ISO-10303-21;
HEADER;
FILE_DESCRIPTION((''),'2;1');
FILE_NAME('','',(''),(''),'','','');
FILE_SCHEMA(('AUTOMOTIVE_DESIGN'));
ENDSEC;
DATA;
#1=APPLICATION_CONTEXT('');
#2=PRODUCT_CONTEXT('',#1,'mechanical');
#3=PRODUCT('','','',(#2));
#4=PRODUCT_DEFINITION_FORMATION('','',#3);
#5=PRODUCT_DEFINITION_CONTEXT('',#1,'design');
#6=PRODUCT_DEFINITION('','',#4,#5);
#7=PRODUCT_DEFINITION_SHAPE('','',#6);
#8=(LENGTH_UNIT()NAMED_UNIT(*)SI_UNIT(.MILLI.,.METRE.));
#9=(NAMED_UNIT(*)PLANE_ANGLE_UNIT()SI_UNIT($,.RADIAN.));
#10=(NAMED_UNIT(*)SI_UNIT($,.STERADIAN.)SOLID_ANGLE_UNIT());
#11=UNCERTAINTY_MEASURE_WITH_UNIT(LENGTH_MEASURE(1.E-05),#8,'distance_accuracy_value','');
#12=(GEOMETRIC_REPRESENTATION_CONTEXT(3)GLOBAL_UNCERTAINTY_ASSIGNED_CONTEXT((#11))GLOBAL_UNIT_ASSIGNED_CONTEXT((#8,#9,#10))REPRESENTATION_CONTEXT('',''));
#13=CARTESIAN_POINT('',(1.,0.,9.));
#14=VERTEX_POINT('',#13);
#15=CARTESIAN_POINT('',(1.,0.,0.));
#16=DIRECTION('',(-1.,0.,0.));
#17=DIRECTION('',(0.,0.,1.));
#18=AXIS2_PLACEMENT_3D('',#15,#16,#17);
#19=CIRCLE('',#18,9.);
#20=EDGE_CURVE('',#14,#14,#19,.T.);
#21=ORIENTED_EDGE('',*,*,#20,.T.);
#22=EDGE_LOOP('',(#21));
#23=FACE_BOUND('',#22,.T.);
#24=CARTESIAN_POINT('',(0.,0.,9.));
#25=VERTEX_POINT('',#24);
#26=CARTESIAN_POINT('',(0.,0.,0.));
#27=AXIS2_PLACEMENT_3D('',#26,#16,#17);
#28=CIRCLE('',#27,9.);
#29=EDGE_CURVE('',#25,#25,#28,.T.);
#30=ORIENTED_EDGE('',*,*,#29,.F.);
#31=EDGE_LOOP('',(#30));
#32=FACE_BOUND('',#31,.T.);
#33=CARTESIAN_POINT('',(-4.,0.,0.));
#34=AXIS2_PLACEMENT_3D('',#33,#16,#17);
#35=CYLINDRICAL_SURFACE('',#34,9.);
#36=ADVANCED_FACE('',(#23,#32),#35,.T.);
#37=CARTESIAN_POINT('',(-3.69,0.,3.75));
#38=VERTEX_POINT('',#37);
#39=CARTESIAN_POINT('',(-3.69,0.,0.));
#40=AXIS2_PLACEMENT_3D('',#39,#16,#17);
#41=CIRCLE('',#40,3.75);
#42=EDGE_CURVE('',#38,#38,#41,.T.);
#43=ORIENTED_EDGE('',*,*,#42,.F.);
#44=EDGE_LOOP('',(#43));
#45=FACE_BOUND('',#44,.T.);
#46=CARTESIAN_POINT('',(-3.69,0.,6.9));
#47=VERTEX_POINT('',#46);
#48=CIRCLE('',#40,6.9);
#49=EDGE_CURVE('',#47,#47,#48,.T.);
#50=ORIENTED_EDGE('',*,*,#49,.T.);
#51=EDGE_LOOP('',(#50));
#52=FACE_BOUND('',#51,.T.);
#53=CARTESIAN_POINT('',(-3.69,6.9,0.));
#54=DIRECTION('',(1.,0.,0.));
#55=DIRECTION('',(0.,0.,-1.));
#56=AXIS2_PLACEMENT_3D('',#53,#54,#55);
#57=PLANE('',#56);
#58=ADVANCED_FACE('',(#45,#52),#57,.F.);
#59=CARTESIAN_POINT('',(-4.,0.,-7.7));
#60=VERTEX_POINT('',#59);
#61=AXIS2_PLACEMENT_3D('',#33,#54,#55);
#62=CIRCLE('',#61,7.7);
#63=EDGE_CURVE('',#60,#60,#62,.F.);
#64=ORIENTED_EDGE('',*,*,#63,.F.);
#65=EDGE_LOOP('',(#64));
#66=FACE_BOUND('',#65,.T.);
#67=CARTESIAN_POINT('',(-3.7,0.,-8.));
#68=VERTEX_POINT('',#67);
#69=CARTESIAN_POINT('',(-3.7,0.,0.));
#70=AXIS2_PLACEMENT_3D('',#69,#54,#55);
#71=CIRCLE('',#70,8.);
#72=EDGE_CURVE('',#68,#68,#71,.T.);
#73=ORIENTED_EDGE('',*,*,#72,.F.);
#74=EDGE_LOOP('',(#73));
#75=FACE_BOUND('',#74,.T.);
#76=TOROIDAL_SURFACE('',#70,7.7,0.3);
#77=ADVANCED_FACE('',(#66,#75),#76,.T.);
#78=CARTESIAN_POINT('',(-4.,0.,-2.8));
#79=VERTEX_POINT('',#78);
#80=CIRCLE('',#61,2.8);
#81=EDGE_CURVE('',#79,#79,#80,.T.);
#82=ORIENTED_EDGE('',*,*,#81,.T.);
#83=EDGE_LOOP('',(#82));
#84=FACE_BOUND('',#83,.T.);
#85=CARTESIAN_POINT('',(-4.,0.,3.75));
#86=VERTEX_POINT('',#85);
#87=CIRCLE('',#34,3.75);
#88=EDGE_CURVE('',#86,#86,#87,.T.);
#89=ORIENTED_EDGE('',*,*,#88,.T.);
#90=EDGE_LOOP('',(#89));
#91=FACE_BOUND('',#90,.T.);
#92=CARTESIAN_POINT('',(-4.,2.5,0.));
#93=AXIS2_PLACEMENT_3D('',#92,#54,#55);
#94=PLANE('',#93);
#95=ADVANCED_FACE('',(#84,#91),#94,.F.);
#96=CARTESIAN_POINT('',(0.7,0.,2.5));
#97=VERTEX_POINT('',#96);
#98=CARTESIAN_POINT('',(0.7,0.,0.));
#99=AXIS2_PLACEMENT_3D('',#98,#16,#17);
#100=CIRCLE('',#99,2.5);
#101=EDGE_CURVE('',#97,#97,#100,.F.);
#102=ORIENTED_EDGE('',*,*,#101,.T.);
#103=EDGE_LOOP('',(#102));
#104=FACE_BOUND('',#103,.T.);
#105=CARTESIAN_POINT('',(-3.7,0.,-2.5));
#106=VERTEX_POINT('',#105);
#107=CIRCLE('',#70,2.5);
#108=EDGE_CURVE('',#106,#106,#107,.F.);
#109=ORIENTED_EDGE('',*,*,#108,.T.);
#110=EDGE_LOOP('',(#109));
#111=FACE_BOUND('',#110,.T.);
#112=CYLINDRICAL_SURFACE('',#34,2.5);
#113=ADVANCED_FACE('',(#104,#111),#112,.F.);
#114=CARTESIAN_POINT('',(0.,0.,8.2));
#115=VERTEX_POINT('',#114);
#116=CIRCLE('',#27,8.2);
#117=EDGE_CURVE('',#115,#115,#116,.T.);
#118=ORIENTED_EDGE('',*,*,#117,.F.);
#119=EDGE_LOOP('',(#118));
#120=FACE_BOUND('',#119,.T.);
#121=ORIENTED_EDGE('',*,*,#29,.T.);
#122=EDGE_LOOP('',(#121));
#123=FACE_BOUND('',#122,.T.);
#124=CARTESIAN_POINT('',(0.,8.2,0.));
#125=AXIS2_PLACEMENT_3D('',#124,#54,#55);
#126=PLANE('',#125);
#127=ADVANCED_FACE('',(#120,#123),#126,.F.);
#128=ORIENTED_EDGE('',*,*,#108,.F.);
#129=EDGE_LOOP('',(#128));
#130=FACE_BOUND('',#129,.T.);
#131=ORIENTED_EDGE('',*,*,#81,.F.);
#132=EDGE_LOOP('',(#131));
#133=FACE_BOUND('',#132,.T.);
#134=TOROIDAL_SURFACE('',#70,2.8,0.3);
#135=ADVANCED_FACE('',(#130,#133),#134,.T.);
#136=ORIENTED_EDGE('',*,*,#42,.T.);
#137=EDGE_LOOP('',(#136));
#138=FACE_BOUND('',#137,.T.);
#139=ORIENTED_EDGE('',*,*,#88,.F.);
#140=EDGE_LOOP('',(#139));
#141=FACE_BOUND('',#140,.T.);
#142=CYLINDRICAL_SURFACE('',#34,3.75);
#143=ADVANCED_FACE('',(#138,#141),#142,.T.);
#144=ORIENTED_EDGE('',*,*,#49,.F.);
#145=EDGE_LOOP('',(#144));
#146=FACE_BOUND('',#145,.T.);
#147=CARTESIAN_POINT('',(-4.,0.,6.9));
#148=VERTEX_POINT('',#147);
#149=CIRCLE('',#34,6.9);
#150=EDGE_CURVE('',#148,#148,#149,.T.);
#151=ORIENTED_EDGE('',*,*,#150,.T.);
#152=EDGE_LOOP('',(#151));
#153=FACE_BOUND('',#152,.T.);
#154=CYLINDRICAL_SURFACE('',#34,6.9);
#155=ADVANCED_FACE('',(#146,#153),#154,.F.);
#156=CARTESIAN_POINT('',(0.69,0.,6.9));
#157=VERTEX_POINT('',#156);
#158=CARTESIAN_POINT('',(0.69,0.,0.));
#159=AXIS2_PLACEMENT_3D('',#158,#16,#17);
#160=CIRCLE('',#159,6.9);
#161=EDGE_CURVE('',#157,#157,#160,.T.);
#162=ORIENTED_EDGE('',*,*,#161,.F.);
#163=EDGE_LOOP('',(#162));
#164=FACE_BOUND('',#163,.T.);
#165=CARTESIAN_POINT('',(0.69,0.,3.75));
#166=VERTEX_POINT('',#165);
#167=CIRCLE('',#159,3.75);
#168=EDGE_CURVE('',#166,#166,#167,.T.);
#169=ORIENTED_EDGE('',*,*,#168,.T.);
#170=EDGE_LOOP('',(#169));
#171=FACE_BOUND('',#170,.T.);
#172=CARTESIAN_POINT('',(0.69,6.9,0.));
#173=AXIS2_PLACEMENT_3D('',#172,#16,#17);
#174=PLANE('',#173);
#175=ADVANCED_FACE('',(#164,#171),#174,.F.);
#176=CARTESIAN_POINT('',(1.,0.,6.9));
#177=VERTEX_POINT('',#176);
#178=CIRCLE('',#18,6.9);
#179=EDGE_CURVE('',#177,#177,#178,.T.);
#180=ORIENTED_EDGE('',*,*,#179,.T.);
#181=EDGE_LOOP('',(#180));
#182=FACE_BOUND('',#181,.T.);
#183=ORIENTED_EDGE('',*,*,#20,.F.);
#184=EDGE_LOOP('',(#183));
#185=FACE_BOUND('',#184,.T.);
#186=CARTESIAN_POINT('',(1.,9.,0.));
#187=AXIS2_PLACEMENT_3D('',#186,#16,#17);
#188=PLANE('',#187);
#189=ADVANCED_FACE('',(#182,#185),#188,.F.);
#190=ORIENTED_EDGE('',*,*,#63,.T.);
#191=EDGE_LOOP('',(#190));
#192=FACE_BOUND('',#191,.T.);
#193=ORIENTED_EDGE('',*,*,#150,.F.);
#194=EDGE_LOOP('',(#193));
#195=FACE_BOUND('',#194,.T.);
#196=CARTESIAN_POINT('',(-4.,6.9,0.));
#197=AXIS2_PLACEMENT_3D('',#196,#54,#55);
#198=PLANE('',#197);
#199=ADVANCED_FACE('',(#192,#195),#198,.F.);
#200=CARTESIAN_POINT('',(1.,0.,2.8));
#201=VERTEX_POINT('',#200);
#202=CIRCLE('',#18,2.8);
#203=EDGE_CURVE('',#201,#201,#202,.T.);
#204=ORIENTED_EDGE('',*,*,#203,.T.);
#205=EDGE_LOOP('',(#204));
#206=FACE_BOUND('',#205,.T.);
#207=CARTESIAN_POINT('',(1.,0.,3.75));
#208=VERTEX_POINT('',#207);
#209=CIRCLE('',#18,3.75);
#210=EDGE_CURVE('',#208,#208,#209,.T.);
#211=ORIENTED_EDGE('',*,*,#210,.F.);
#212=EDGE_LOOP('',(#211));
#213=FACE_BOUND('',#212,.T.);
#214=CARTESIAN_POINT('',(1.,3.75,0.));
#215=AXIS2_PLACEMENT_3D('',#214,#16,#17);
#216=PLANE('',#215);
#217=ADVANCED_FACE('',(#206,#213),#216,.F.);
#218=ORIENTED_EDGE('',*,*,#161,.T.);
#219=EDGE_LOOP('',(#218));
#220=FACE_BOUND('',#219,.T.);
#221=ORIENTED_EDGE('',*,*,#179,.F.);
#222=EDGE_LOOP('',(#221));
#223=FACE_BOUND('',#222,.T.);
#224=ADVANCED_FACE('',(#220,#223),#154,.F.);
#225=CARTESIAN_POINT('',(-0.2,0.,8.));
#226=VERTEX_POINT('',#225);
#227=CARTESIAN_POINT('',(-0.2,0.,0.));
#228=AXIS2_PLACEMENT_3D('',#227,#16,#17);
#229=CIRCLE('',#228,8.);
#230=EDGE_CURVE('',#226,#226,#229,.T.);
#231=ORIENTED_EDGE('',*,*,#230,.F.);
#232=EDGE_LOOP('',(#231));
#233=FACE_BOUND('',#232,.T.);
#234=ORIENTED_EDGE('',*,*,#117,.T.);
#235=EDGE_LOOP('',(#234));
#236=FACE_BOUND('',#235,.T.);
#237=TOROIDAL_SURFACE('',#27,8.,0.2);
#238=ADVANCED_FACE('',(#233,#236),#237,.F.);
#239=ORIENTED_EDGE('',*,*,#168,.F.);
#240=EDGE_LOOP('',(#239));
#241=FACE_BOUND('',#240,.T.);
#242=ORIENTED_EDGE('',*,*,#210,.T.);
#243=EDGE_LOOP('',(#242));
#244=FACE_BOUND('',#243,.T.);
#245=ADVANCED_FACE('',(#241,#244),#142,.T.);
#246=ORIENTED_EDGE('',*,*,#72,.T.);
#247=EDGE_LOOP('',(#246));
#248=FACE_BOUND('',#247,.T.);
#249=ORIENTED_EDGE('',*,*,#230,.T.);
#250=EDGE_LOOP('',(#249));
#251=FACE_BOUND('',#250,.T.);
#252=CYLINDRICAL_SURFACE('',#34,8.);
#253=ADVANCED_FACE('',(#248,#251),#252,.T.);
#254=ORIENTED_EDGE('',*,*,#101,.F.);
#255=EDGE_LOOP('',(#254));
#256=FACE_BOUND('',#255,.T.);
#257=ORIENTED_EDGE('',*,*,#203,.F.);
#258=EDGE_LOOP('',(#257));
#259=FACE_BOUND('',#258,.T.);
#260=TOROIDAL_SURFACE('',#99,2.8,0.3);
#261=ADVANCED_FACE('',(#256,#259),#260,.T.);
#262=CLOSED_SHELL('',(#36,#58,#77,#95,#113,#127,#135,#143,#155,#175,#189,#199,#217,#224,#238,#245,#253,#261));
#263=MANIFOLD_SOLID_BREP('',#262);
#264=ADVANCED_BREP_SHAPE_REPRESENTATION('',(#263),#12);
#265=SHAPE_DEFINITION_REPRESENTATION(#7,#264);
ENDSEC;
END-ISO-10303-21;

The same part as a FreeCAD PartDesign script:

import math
import FreeCAD as App
import Part
import Sketcher
Q = App.Units.Quantity


def edges_at(feature, points):
    """Names of the edges that pass closest to the given points."""
    edges = feature.Shape.Edges
    near = lambda p: min(range(len(edges)), key=lambda i: edges[i].distToShape(Part.Vertex(*p))[0])
    return sorted({f"Edge{near(p) + 1}" for p in points})

doc = App.newDocument("Part")
params = doc.addObject("Spreadsheet::Sheet", "Params")
for row, (alias, value) in enumerate([
    ("sketch1_radius", "0.2 mm"),
    ("sketch1_width", "5 mm"),
    ("sketch1_width2", "1 mm"),
    ("sketch1_height", "0.8 mm"),
    ("sketch1_height2", "1.1 mm"),
    ("revolution_angle", "360 deg"),
    ("fillet_radius", "0.3 mm"),
], start=1):
    params.set(f"A{row}", alias)
    params.set(f"B{row}", "=" + value)
    params.setAlias(f"B{row}", alias)

body = doc.addObject("PartDesign::Body", "Body")

# Sketch on XY plane
sketch1 = doc.addObject("Sketcher::SketchObject", "Sketch")
body.addObject(sketch1)
sketch1.AttachmentSupport = (doc.XY_Plane, [""])
sketch1.MapMode = "FlatFace"
sketch1.addGeometry([
    Part.LineSegment(App.Vector(0, 9, 0), App.Vector(0, 8.2, 0)),  # 0
    Part.ArcOfCircle(Part.Circle(App.Vector(0, 8, 0), App.Vector(0, 0, 1), 0.2), math.radians(180), math.radians(450)),  # 1
    Part.LineSegment(App.Vector(-0.2, 8, 0), App.Vector(-4, 8, 0)),  # 2
    Part.LineSegment(App.Vector(-4, 8, 0), App.Vector(-4, 6.9, 0)),  # 3
    Part.LineSegment(App.Vector(-4, 6.9, 0), App.Vector(-3.69, 6.9, 0)),  # 4
    Part.LineSegment(App.Vector(-3.69, 6.9, 0), App.Vector(-3.69, 3.75, 0)),  # 5
    Part.LineSegment(App.Vector(-3.69, 3.75, 0), App.Vector(-4, 3.75, 0)),  # 6
    Part.LineSegment(App.Vector(-4, 3.75, 0), App.Vector(-4, 2.5, 0)),  # 7
    Part.LineSegment(App.Vector(-4, 2.5, 0), App.Vector(1, 2.5, 0)),  # 8
    Part.LineSegment(App.Vector(1, 2.5, 0), App.Vector(1, 3.75, 0)),  # 9
    Part.LineSegment(App.Vector(1, 3.75, 0), App.Vector(0.69, 3.75, 0)),  # 10
    Part.LineSegment(App.Vector(0.69, 3.75, 0), App.Vector(0.69, 6.9, 0)),  # 11
    Part.LineSegment(App.Vector(0.69, 6.9, 0), App.Vector(1, 6.9, 0)),  # 12
    Part.LineSegment(App.Vector(1, 6.9, 0), App.Vector(1, 9, 0)),  # 13
    Part.LineSegment(App.Vector(1, 9, 0), App.Vector(0, 9, 0)),  # 14
], False)
sketch1.addConstraint([
    Sketcher.Constraint("Coincident", 0, 2, 1, 2),
    Sketcher.Constraint("Coincident", 1, 1, 2, 1),
    Sketcher.Constraint("Coincident", 2, 2, 3, 1),
    Sketcher.Constraint("Coincident", 3, 2, 4, 1),
    Sketcher.Constraint("Coincident", 4, 2, 5, 1),
    Sketcher.Constraint("Coincident", 5, 2, 6, 1),
    Sketcher.Constraint("Coincident", 6, 2, 7, 1),
    Sketcher.Constraint("Coincident", 7, 2, 8, 1),
    Sketcher.Constraint("Coincident", 8, 2, 9, 1),
    Sketcher.Constraint("Coincident", 9, 2, 10, 1),
    Sketcher.Constraint("Coincident", 10, 2, 11, 1),
    Sketcher.Constraint("Coincident", 11, 2, 12, 1),
    Sketcher.Constraint("Coincident", 12, 2, 13, 1),
    Sketcher.Constraint("Coincident", 13, 2, 14, 1),
    Sketcher.Constraint("Coincident", 14, 2, 0, 1),
    Sketcher.Constraint("Vertical", 0),
    Sketcher.Constraint("Horizontal", 2),
    Sketcher.Constraint("Vertical", 3),
    Sketcher.Constraint("Horizontal", 4),
    Sketcher.Constraint("Vertical", 5),
    Sketcher.Constraint("Horizontal", 6),
    Sketcher.Constraint("Vertical", 7),
    Sketcher.Constraint("Horizontal", 8),
    Sketcher.Constraint("Vertical", 9),
    Sketcher.Constraint("Horizontal", 10),
    Sketcher.Constraint("Vertical", 11),
    Sketcher.Constraint("Horizontal", 12),
    Sketcher.Constraint("Vertical", 13),
    Sketcher.Constraint("Horizontal", 14),
    Sketcher.Constraint("PointOnObject", 1, 3, -2),
    Sketcher.Constraint("PointOnObject", 0, 2, -2),
    Sketcher.Constraint("Horizontal", 6, 2, 9, 2),
    Sketcher.Constraint("Horizontal", 4, 2, 11, 2),
    Sketcher.Constraint("Vertical", 3, 2, 6, 2),
    Sketcher.Constraint("Vertical", 9, 2, 12, 2),
    Sketcher.Constraint("Equal", 6, 10),
    Sketcher.Constraint("Radius", 1, Q("0.2 mm")),
    Sketcher.Constraint("DistanceX", 8, 1, 8, 2, Q("5 mm")),
    Sketcher.Constraint("DistanceX", 14, 2, 14, 1, Q("1 mm")),
    Sketcher.Constraint("DistanceY", 0, 2, 0, 1, Q("0.8 mm")),
    Sketcher.Constraint("DistanceY", 3, 2, 3, 1, Q("1.1 mm")),
    Sketcher.Constraint("DistanceY", 13, 1, 13, 2, Q("2.1 mm")),
    Sketcher.Constraint("DistanceY", -1, 1, 1, 3, Q("8 mm")),
    Sketcher.Constraint("DistanceX", 4, 1, 4, 2, Q("0.31 mm")),
    Sketcher.Constraint("DistanceY", 5, 2, 5, 1, Q("3.15 mm")),
    Sketcher.Constraint("DistanceY", 7, 2, 7, 1, Q("1.25 mm")),
])
sketch1.setExpression("Constraints[36]", "Params.sketch1_radius")
sketch1.setExpression("Constraints[37]", "Params.sketch1_width")
sketch1.setExpression("Constraints[38]", "Params.sketch1_width2")
sketch1.setExpression("Constraints[39]", "Params.sketch1_height")
sketch1.setExpression("Constraints[40]", "Params.sketch1_height2")
revolution = doc.addObject("PartDesign::Revolution", "Revolution")
body.addObject(revolution)
revolution.Profile = sketch1
revolution.ReferenceAxis = (sketch1, ["H_Axis"])
revolution.setExpression("Angle", "Params.revolution_angle")
doc.recompute()

fillet = doc.addObject("PartDesign::Fillet", "Fillet")
body.addObject(fillet)
fillet.Base = (revolution, edges_at(revolution, [(1, -2.5, 0), (-4, -2.5, 0), (-4, -8, 0)]))
fillet.setExpression("Radius", "Params.fillet_radius")

doc.recompute()
